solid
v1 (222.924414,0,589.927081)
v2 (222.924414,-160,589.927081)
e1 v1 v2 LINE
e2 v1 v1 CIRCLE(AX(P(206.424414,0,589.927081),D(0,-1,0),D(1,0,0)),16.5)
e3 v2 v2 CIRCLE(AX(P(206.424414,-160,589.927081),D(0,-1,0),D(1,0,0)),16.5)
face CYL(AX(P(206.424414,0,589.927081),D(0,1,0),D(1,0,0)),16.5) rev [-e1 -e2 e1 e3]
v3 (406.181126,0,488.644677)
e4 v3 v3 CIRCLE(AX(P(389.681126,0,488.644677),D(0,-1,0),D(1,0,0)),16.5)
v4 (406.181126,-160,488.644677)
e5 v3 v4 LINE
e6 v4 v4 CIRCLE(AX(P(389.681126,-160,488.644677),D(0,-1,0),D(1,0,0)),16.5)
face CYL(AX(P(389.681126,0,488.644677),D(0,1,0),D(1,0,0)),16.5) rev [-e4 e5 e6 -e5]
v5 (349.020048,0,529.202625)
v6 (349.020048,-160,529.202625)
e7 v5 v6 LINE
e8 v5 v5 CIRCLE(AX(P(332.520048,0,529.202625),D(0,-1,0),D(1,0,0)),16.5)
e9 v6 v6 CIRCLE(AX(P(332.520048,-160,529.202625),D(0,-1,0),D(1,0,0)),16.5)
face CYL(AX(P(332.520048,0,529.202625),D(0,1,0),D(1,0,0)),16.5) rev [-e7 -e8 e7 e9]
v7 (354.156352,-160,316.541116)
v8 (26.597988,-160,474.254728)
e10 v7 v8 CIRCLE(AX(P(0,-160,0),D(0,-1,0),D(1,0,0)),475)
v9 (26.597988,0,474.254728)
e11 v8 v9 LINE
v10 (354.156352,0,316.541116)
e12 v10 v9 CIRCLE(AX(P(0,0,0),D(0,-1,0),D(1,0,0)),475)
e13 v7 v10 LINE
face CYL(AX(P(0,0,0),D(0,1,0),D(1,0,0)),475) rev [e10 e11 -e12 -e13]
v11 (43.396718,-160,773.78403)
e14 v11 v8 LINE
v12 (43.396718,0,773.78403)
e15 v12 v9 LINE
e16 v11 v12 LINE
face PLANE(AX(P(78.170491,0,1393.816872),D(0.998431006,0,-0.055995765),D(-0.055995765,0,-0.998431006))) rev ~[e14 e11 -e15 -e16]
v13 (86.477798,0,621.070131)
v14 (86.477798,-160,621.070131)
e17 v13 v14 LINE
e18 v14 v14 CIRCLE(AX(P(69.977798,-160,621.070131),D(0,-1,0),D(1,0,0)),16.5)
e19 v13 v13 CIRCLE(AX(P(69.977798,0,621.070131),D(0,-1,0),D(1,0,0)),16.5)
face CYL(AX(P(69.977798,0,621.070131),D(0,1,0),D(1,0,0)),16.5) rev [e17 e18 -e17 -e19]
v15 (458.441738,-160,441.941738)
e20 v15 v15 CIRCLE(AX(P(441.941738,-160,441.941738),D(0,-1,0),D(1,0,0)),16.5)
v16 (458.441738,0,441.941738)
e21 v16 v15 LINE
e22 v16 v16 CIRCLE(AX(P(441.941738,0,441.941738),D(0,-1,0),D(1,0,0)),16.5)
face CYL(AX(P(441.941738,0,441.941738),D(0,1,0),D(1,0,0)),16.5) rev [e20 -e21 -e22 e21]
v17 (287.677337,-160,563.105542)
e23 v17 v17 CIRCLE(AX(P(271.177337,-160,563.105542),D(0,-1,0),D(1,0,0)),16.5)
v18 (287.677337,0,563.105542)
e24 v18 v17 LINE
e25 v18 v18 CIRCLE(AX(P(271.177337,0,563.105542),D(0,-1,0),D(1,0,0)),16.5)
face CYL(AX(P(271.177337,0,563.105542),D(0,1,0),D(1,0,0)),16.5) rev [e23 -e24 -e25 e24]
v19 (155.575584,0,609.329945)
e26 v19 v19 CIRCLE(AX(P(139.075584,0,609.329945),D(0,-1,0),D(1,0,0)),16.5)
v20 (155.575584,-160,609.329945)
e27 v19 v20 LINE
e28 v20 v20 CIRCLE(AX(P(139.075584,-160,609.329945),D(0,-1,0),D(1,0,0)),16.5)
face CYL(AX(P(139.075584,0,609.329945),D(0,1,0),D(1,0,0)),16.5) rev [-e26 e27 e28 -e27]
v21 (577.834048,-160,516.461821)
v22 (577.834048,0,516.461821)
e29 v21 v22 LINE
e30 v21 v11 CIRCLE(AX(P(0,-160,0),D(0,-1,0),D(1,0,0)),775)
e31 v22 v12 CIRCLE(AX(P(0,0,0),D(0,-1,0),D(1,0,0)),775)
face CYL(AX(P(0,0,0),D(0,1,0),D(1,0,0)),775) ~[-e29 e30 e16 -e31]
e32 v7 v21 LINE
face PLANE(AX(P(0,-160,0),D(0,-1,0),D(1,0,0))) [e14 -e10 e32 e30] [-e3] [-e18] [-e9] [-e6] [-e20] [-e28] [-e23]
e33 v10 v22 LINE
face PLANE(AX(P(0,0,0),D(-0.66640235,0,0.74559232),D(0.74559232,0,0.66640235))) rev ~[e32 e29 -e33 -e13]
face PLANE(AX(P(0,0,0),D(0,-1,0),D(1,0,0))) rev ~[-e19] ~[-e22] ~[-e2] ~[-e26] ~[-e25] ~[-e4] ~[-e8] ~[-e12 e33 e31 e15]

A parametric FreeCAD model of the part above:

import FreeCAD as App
import Part
import Sketcher
Q = App.Units.Quantity


def add_polygon(sketch, points):
    """Adds a closed chain of lines whose ends are joined by coincident constraints."""
    first, n = sketch.GeometryCount, len(points)
    for a, b in zip(points, points[1:] + points[:1]):
        sketch.addGeometry(Part.LineSegment(App.Vector(*a, 0), App.Vector(*b, 0)), False)
    for i in range(n):
        sketch.addConstraint(Sketcher.Constraint("Coincident", first + i, 2, first + (i + 1) % n, 1))

doc = App.newDocument("Part")
body = doc.addObject("PartDesign::Body", "Body")

sketch1 = body.newObject("Sketcher::SketchObject", "Sketch")
sketch1.AttachmentSupport = (doc.getObject("XZ_Plane"), [""])
sketch1.MapMode = "FlatFace"
sketch1.addGeometry(Part.Circle(App.Vector(0, 0, 0), App.Vector(0, 0, 1), 775), False)
sketch1.addGeometry(Part.Circle(App.Vector(-332.520048, -529.202625, 0), App.Vector(0, 0, 1), 16.5), False)
sketch1.addGeometry(Part.Circle(App.Vector(-389.681126, -488.644677, 0), App.Vector(0, 0, 1), 16.5), False)
sketch1.addGeometry(Part.Circle(App.Vector(-488.644677, -389.681126, 0), App.Vector(0, 0, 1), 16.5), False)
sketch1.addGeometry(Part.Circle(App.Vector(-529.202625, -332.520048, 0), App.Vector(0, 0, 1), 16.5), False)
sketch1.addGeometry(Part.Circle(App.Vector(-441.941738, -441.941738, 0), App.Vector(0, 0, 1), 16.5), False)
sketch1.addGeometry(Part.Circle(App.Vector(-271.177337, -563.105542, 0), App.Vector(0, 0, 1), 16.5), False)
sketch1.addGeometry(Part.Circle(App.Vector(-206.424414, -589.927081, 0), App.Vector(0, 0, 1), 16.5), False)
sketch1.addGeometry(Part.Circle(App.Vector(-139.075584, -609.329945, 0), App.Vector(0, 0, 1), 16.5), False)
sketch1.addGeometry(Part.Circle(App.Vector(-69.977798, -621.070131, 0), App.Vector(0, 0, 1), 16.5), False)
sketch1.addGeometry(Part.Circle(App.Vector(-563.105542, -271.177337, 0), App.Vector(0, 0, 1), 16.5), False)
sketch1.addGeometry(Part.Circle(App.Vector(-589.927081, -206.424414, 0), App.Vector(0, 0, 1), 16.5), False)
sketch1.addGeometry(Part.Circle(App.Vector(-609.329945, -139.075584, 0), App.Vector(0, 0, 1), 16.5), False)
sketch1.addGeometry(Part.Circle(App.Vector(-621.070131, -69.977798, 0), App.Vector(0, 0, 1), 16.5), False)
sketch1.addGeometry(Part.Circle(App.Vector(0, -625, 0), App.Vector(0, 0, 1), 16.5), False)
sketch1.addGeometry(Part.Circle(App.Vector(69.977798, -621.070131, 0), App.Vector(0, 0, 1), 16.5), False)
sketch1.addGeometry(Part.Circle(App.Vector(139.075584, -609.329945, 0), App.Vector(0, 0, 1), 16.5), False)
sketch1.addGeometry(Part.Circle(App.Vector(206.424414, -589.927081, 0), App.Vector(0, 0, 1), 16.5), False)
sketch1.addGeometry(Part.Circle(App.Vector(271.177337, -563.105542, 0), App.Vector(0, 0, 1), 16.5), False)
sketch1.addGeometry(Part.Circle(App.Vector(332.520048, -529.202625, 0), App.Vector(0, 0, 1), 16.5), False)
sketch1.addGeometry(Part.Circle(App.Vector(389.681126, -488.644677, 0), App.Vector(0, 0, 1), 16.5), False)
sketch1.addGeometry(Part.Circle(App.Vector(441.941738, -441.941738, 0), App.Vector(0, 0, 1), 16.5), False)
sketch1.addGeometry(Part.Circle(App.Vector(488.644677, -389.681126, 0), App.Vector(0, 0, 1), 16.5), False)
sketch1.addGeometry(Part.Circle(App.Vector(529.202625, -332.520048, 0), App.Vector(0, 0, 1), 16.5), False)
sketch1.addGeometry(Part.Circle(App.Vector(563.105542, -271.177337, 0), App.Vector(0, 0, 1), 16.5), False)
sketch1.addGeometry(Part.Circle(App.Vector(589.927081, -206.424414, 0), App.Vector(0, 0, 1), 16.5), False)
sketch1.addGeometry(Part.Circle(App.Vector(609.329945, -139.075584, 0), App.Vector(0, 0, 1), 16.5), False)
sketch1.addGeometry(Part.Circle(App.Vector(621.070131, -69.977798, 0), App.Vector(0, 0, 1), 16.5), False)
sketch1.addGeometry(Part.Circle(App.Vector(-625, 0, 0), App.Vector(0, 0, 1), 16.5), False)
sketch1.addGeometry(Part.Circle(App.Vector(-621.070131, 69.977798, 0), App.Vector(0, 0, 1), 16.5), False)
sketch1.addGeometry(Part.Circle(App.Vector(-609.329945, 139.075584, 0), App.Vector(0, 0, 1), 16.5), False)
sketch1.addGeometry(Part.Circle(App.Vector(-589.927081, 206.424414, 0), App.Vector(0, 0, 1), 16.5), False)
sketch1.addGeometry(Part.Circle(App.Vector(-563.105542, 271.177337, 0), App.Vector(0, 0, 1), 16.5), False)
sketch1.addGeometry(Part.Circle(App.Vector(-529.202625, 332.520048, 0), App.Vector(0, 0, 1), 16.5), False)
sketch1.addGeometry(Part.Circle(App.Vector(-488.644677, 389.681126, 0), App.Vector(0, 0, 1), 16.5), False)
sketch1.addGeometry(Part.Circle(App.Vector(-441.941738, 441.941738, 0), App.Vector(0, 0, 1), 16.5), False)
sketch1.addGeometry(Part.Circle(App.Vector(-389.681126, 488.644677, 0), App.Vector(0, 0, 1), 16.5), False)
sketch1.addGeometry(Part.Circle(App.Vector(-332.520048, 529.202625, 0), App.Vector(0, 0, 1), 16.5), False)
sketch1.addGeometry(Part.Circle(App.Vector(-271.177337, 563.105542, 0), App.Vector(0, 0, 1), 16.5), False)
sketch1.addGeometry(Part.Circle(App.Vector(-206.424414, 589.927081, 0), App.Vector(0, 0, 1), 16.5), False)
sketch1.addGeometry(Part.Circle(App.Vector(-139.075584, 609.329945, 0), App.Vector(0, 0, 1), 16.5), False)
sketch1.addGeometry(Part.Circle(App.Vector(-69.977798, 621.070131, 0), App.Vector(0, 0, 1), 16.5), False)
sketch1.addGeometry(Part.Circle(App.Vector(0, 0, 0), App.Vector(0, 0, 1), 475), False)
sketch1.addGeometry(Part.Circle(App.Vector(625, 0, 0), App.Vector(0, 0, 1), 16.5), False)
sketch1.addGeometry(Part.Circle(App.Vector(621.070131, 69.977798, 0), App.Vector(0, 0, 1), 16.5), False)
sketch1.addGeometry(Part.Circle(App.Vector(609.329945, 139.075584, 0), App.Vector(0, 0, 1), 16.5), False)
sketch1.addGeometry(Part.Circle(App.Vector(589.927081, 206.424414, 0), App.Vector(0, 0, 1), 16.5), False)
sketch1.addGeometry(Part.Circle(App.Vector(563.105542, 271.177337, 0), App.Vector(0, 0, 1), 16.5), False)
sketch1.addGeometry(Part.Circle(App.Vector(0, 625, 0), App.Vector(0, 0, 1), 16.5), False)
sketch1.addGeometry(Part.Circle(App.Vector(69.977798, 621.070131, 0), App.Vector(0, 0, 1), 16.5), False)
sketch1.addGeometry(Part.Circle(App.Vector(139.075584, 609.329945, 0), App.Vector(0, 0, 1), 16.5), False)
sketch1.addGeometry(Part.Circle(App.Vector(206.424414, 589.927081, 0), App.Vector(0, 0, 1), 16.5), False)
sketch1.addGeometry(Part.Circle(App.Vector(271.177337, 563.105542, 0), App.Vector(0, 0, 1), 16.5), False)
sketch1.addGeometry(Part.Circle(App.Vector(441.941738, 441.941738, 0), App.Vector(0, 0, 1), 16.5), False)
sketch1.addGeometry(Part.Circle(App.Vector(529.202625, 332.520048, 0), App.Vector(0, 0, 1), 16.5), False)
sketch1.addGeometry(Part.Circle(App.Vector(488.644677, 389.681126, 0), App.Vector(0, 0, 1), 16.5), False)
sketch1.addGeometry(Part.Circle(App.Vector(389.681126, 488.644677, 0), App.Vector(0, 0, 1), 16.5), False)
sketch1.addGeometry(Part.Circle(App.Vector(332.520048, 529.202625, 0), App.Vector(0, 0, 1), 16.5), False)
sketch1.addConstraint(Sketcher.Constraint("Coincident", 0, 3, -1, 1))
sketch1.addConstraint(Sketcher.Constraint("Coincident", 42, 3, -1, 1))
sketch1.addConstraint(Sketcher.Constraint("Equal", 1, 2))
sketch1.addConstraint(Sketcher.Constraint("Equal", 2, 3))
sketch1.addConstraint(Sketcher.Constraint("Equal", 3, 4))
sketch1.addConstraint(Sketcher.Constraint("Equal", 4, 5))
sketch1.addConstraint(Sketcher.Constraint("Equal", 5, 6))
sketch1.addConstraint(Sketcher.Constraint("Equal", 6, 7))
sketch1.addConstraint(Sketcher.Constraint("Equal", 7, 8))
sketch1.addConstraint(Sketcher.Constraint("Equal", 8, 9))
sketch1.addConstraint(Sketcher.Constraint("Equal", 9, 10))
sketch1.addConstraint(Sketcher.Constraint("Equal", 10, 11))
sketch1.addConstraint(Sketcher.Constraint("Equal", 11, 12))
sketch1.addConstraint(Sketcher.Constraint("Equal", 12, 13))
sketch1.addConstraint(Sketcher.Constraint("Equal", 13, 14))
sketch1.addConstraint(Sketcher.Constraint("Equal", 14, 15))
sketch1.addConstraint(Sketcher.Constraint("Equal", 15, 16))
sketch1.addConstraint(Sketcher.Constraint("Equal", 16, 17))
sketch1.addConstraint(Sketcher.Constraint("Equal", 17, 18))
sketch1.addConstraint(Sketcher.Constraint("Equal", 18, 19))
sketch1.addConstraint(Sketcher.Constraint("Equal", 19, 20))
sketch1.addConstraint(Sketcher.Constraint("Equal", 20, 21))
sketch1.addConstraint(Sketcher.Constraint("Equal", 21, 22))
sketch1.addConstraint(Sketcher.Constraint("Equal", 22, 23))
sketch1.addConstraint(Sketcher.Constraint("Equal", 23, 24))
sketch1.addConstraint(Sketcher.Constraint("Equal", 24, 25))
sketch1.addConstraint(Sketcher.Constraint("Equal", 25, 26))
sketch1.addConstraint(Sketcher.Constraint("Equal", 26, 27))
sketch1.addConstraint(Sketcher.Constraint("Equal", 27, 28))
sketch1.addConstraint(Sketcher.Constraint("Equal", 28, 29))
sketch1.addConstraint(Sketcher.Constraint("Equal", 29, 30))
sketch1.addConstraint(Sketcher.Constraint("Equal", 30, 31))
sketch1.addConstraint(Sketcher.Constraint("Equal", 31, 32))
sketch1.addConstraint(Sketcher.Constraint("Equal", 32, 33))
sketch1.addConstraint(Sketcher.Constraint("Equal", 33, 34))
sketch1.addConstraint(Sketcher.Constraint("Equal", 34, 35))
sketch1.addConstraint(Sketcher.Constraint("Equal", 35, 36))
sketch1.addConstraint(Sketcher.Constraint("Equal", 36, 37))
sketch1.addConstraint(Sketcher.Constraint("Equal", 37, 38))
sketch1.addConstraint(Sketcher.Constraint("Equal", 38, 39))
sketch1.addConstraint(Sketcher.Constraint("Equal", 39, 40))
sketch1.addConstraint(Sketcher.Constraint("Equal", 40, 41))
sketch1.addConstraint(Sketcher.Constraint("Equal", 41, 43))
sketch1.addConstraint(Sketcher.Constraint("Equal", 43, 44))
sketch1.addConstraint(Sketcher.Constraint("Equal", 44, 45))
sketch1.addConstraint(Sketcher.Constraint("Equal", 45, 46))
sketch1.addConstraint(Sketcher.Constraint("Equal", 46, 47))
sketch1.addConstraint(Sketcher.Constraint("Equal", 47, 48))
sketch1.addConstraint(Sketcher.Constraint("Equal", 48, 49))
sketch1.addConstraint(Sketcher.Constraint("Equal", 49, 50))
sketch1.addConstraint(Sketcher.Constraint("Equal", 50, 51))
sketch1.addConstraint(Sketcher.Constraint("Equal", 51, 52))
sketch1.addConstraint(Sketcher.Constraint("Equal", 52, 53))
sketch1.addConstraint(Sketcher.Constraint("Equal", 53, 54))
sketch1.addConstraint(Sketcher.Constraint("Equal", 54, 55))
sketch1.addConstraint(Sketcher.Constraint("Equal", 55, 56))
sketch1.addConstraint(Sketcher.Constraint("Equal", 56, 57))
sketch1.addConstraint(Sketcher.Constraint("Symmetric", 27, 3, 29, 3, -1, 1))
sketch1.addConstraint(Sketcher.Constraint("Symmetric", 26, 3, 30, 3, -1, 1))
sketch1.addConstraint(Sketcher.Constraint("Symmetric", 25, 3, 31, 3, -1, 1))
sketch1.addConstraint(Sketcher.Constraint("Symmetric", 24, 3, 32, 3, -1, 1))
sketch1.addConstraint(Sketcher.Constraint("Symmetric", 23, 3, 33, 3, -1, 1))
sketch1.addConstraint(Sketcher.Constraint("Symmetric", 22, 3, 34, 3, -1, 1))
sketch1.addConstraint(Sketcher.Constraint("Symmetric", 21, 3, 35, 3, -1, 1))
sketch1.addConstraint(Sketcher.Constraint("Symmetric", 20, 3, 36, 3, -1, 1))
sketch1.addConstraint(Sketcher.Constraint("Symmetric", 19, 3, 37, 3, -1, 1))
sketch1.addConstraint(Sketcher.Constraint("Symmetric", 18, 3, 38, 3, -1, 1))
sketch1.addConstraint(Sketcher.Constraint("Symmetric", 17, 3, 39, 3, -1, 1))
sketch1.addConstraint(Sketcher.Constraint("Symmetric", 16, 3, 40, 3, -1, 1))
sketch1.addConstraint(Sketcher.Constraint("Symmetric", 15, 3, 41, 3, -1, 1))
sketch1.addConstraint(Sketcher.Constraint("Symmetric", 28, 3, 43, 3, -1, 1))
sketch1.addConstraint(Sketcher.Constraint("Symmetric", 13, 3, 44, 3, -1, 1))
sketch1.addConstraint(Sketcher.Constraint("Symmetric", 12, 3, 45, 3, -1, 1))
sketch1.addConstraint(Sketcher.Constraint("Symmetric", 11, 3, 46, 3, -1, 1))
sketch1.addConstraint(Sketcher.Constraint("Symmetric", 10, 3, 47, 3, -1, 1))
sketch1.addConstraint(Sketcher.Constraint("Symmetric", 14, 3, 48, 3, -1, 1))
sketch1.addConstraint(Sketcher.Constraint("Symmetric", 9, 3, 49, 3, -1, 1))
sketch1.addConstraint(Sketcher.Constraint("Symmetric", 8, 3, 50, 3, -1, 1))
sketch1.addConstraint(Sketcher.Constraint("Symmetric", 7, 3, 51, 3, -1, 1))
sketch1.addConstraint(Sketcher.Constraint("Symmetric", 6, 3, 52, 3, -1, 1))
sketch1.addConstraint(Sketcher.Constraint("Symmetric", 5, 3, 53, 3, -1, 1))
sketch1.addConstraint(Sketcher.Constraint("Symmetric", 4, 3, 54, 3, -1, 1))
sketch1.addConstraint(Sketcher.Constraint("Symmetric", 3, 3, 55, 3, -1, 1))
sketch1.addConstraint(Sketcher.Constraint("Symmetric", 2, 3, 56, 3, -1, 1))
sketch1.addConstraint(Sketcher.Constraint("Symmetric", 1, 3, 57, 3, -1, 1))
sketch1.addConstraint(Sketcher.Constraint("Symmetric", 9, 3, 15, 3, -2))
sketch1.addConstraint(Sketcher.Constraint("Symmetric", 8, 3, 16, 3, -2))
sketch1.addConstraint(Sketcher.Constraint("Symmetric", 7, 3, 17, 3, -2))
sketch1.addConstraint(Sketcher.Constraint("Symmetric", 6, 3, 18, 3, -2))
sketch1.addConstraint(Sketcher.Constraint("Symmetric", 1, 3, 19, 3, -2))
sketch1.addConstraint(Sketcher.Constraint("Symmetric", 2, 3, 20, 3, -2))
sketch1.addConstraint(Sketcher.Constraint("Symmetric", 5, 3, 21, 3, -2))
sketch1.addConstraint(Sketcher.Constraint("Symmetric", 3, 3, 22, 3, -2))
sketch1.addConstraint(Sketcher.Constraint("Symmetric", 4, 3, 23, 3, -2))
sketch1.addConstraint(Sketcher.Constraint("Symmetric", 10, 3, 24, 3, -2))
sketch1.addConstraint(Sketcher.Constraint("Symmetric", 11, 3, 25, 3, -2))
sketch1.addConstraint(Sketcher.Constraint("Symmetric", 12, 3, 26, 3, -2))
sketch1.addConstraint(Sketcher.Constraint("Symmetric", 13, 3, 27, 3, -2))
sketch1.addConstraint(Sketcher.Constraint("PointOnObject", 14, 3, -2))
sketch1.addConstraint(Sketcher.Constraint("PointOnObject", 28, 3, -1))
sketch1.addConstraint(Sketcher.Constraint("Diameter", 0, Q("1550 mm")))
sketch1.addConstraint(Sketcher.Constraint("Diameter", 1, Q("33 mm")))
sketch1.addConstraint(Sketcher.Constraint("Diameter", 42, Q("950 mm")))
sketch1.addConstraint(Sketcher.Constraint("DistanceY", 14, 3, -1, 1, Q("625 mm")))
sketch1.addConstraint(Sketcher.Constraint("DistanceX", 28, 3, -1, 1, Q("625 mm")))
sketch1.addConstraint(Sketcher.Constraint("DistanceX", 7, 3, 16, 3, Q("345.499998 mm")))
sketch1.addConstraint(Sketcher.Constraint("DistanceY", 11, 3, 30, 3, Q("345.499998 mm")))
sketch1.addConstraint(Sketcher.Constraint("DistanceX", 9, 3, -1, 1, Q("69.977798 mm")))
sketch1.addConstraint(Sketcher.Constraint("DistanceY", 13, 3, -1, 1, Q("69.977798 mm")))
sketch1.addConstraint(Sketcher.Constraint("DistanceY", 1, 3, 3, 3, Q("139.521499 mm")))
sketch1.addConstraint(Sketcher.Constraint("DistanceX", 4, 3, 2, 3, Q("139.521499 mm")))
sketch1.addConstraint(Sketcher.Constraint("DistanceX", 5, 3, 6, 3, Q("170.764401 mm")))
sketch1.addConstraint(Sketcher.Constraint("DistanceY", 5, 3, 10, 3, Q("170.764401 mm")))
sketch1.addConstraint(Sketcher.Constraint("DistanceX", 5, 3, -1, 1, Q("441.941738 mm")))
sketch1.addConstraint(Sketcher.Constraint("DistanceY", 5, 3, -1, 1, Q("441.941738 mm")))
sketch1.addConstraint(Sketcher.Constraint("DistanceY", 6, 3, -1, 1, Q("563.105542 mm")))
sketch1.addConstraint(Sketcher.Constraint("DistanceY", 7, 3, -1, 1, Q("589.927081 mm")))
sketch1.addConstraint(Sketcher.Constraint("DistanceY", 9, 3, -1, 1, Q("621.070131 mm")))
sketch1.addConstraint(Sketcher.Constraint("DistanceX", 10, 3, -1, 1, Q("563.105542 mm")))
sketch1.addConstraint(Sketcher.Constraint("DistanceX", 11, 3, -1, 1, Q("589.927081 mm")))
sketch1.addConstraint(Sketcher.Constraint("DistanceX", 13, 3, -1, 1, Q("621.070131 mm")))
sketch1.addConstraint(Sketcher.Constraint("DistanceX", 2, 3, 1, 3, Q("57.161078 mm")))
sketch1.addConstraint(Sketcher.Constraint("DistanceY", 1, 3, 2, 3, Q("40.557948 mm")))
sketch1.addConstraint(Sketcher.Constraint("DistanceX", 3, 3, 2, 3, Q("98.963551 mm")))
sketch1.addConstraint(Sketcher.Constraint("DistanceY", 3, 3, 4, 3, Q("57.161078 mm")))
sketch1.addConstraint(Sketcher.Constraint("DistanceX", 5, 3, 2, 3, Q("52.260612 mm")))
sketch1.addConstraint(Sketcher.Constraint("DistanceY", 2, 3, 5, 3, Q("46.702939 mm")))
sketch1.addConstraint(Sketcher.Constraint("DistanceX", 2, 3, 7, 3, Q("183.256712 mm")))
sketch1.addConstraint(Sketcher.Constraint("DistanceY", 8, 3, 1, 3, Q("80.12732 mm")))
sketch1.addConstraint(Sketcher.Constraint("DistanceY", 3, 3, 11, 3, Q("183.256712 mm")))
sketch1.addConstraint(Sketcher.Constraint("DistanceX", 12, 3, 4, 3, Q("80.12732 mm")))
pad1 = body.newObject("PartDesign::Pad", "Pad")
pad1.Profile = sketch1
pad1.Length = 160
body2 = doc.addObject("PartDesign::Body", "Body001")

sketch2 = body2.newObject("Sketcher::SketchObject", "Sketch001")
sketch2.AttachmentSupport = (doc.getObject("XZ_Plane001"), [""])
sketch2.MapMode = "FlatFace"
add_polygon(sketch2, [(78.170491, 1393.816872), (0, 0), (1136.468839, 1015.763554)])
sketch2.addConstraint(Sketcher.Constraint("Coincident", 0, 2, -1, 1))
sketch2.addConstraint(Sketcher.Constraint("Angle", 0, Q("-93.21 deg")))
sketch2.addConstraint(Sketcher.Constraint("Angle", 1, Q("41.79 deg")))
sketch2.addConstraint(Sketcher.Constraint("Distance", 0, Q("1396.007199 mm")))
sketch2.addConstraint(Sketcher.Constraint("DistanceX", -1, 1, 1, 2, Q("1136.468839 mm")))
pad2 = body2.newObject("PartDesign::Pad", "Pad001")
pad2.Profile = sketch2
pad2.Length = 160
doc.recompute()

boolean = body.newObject("PartDesign::Boolean", "Boolean")
boolean.Type = "Common"
boolean.addObjects([body2])

doc.recompute()
